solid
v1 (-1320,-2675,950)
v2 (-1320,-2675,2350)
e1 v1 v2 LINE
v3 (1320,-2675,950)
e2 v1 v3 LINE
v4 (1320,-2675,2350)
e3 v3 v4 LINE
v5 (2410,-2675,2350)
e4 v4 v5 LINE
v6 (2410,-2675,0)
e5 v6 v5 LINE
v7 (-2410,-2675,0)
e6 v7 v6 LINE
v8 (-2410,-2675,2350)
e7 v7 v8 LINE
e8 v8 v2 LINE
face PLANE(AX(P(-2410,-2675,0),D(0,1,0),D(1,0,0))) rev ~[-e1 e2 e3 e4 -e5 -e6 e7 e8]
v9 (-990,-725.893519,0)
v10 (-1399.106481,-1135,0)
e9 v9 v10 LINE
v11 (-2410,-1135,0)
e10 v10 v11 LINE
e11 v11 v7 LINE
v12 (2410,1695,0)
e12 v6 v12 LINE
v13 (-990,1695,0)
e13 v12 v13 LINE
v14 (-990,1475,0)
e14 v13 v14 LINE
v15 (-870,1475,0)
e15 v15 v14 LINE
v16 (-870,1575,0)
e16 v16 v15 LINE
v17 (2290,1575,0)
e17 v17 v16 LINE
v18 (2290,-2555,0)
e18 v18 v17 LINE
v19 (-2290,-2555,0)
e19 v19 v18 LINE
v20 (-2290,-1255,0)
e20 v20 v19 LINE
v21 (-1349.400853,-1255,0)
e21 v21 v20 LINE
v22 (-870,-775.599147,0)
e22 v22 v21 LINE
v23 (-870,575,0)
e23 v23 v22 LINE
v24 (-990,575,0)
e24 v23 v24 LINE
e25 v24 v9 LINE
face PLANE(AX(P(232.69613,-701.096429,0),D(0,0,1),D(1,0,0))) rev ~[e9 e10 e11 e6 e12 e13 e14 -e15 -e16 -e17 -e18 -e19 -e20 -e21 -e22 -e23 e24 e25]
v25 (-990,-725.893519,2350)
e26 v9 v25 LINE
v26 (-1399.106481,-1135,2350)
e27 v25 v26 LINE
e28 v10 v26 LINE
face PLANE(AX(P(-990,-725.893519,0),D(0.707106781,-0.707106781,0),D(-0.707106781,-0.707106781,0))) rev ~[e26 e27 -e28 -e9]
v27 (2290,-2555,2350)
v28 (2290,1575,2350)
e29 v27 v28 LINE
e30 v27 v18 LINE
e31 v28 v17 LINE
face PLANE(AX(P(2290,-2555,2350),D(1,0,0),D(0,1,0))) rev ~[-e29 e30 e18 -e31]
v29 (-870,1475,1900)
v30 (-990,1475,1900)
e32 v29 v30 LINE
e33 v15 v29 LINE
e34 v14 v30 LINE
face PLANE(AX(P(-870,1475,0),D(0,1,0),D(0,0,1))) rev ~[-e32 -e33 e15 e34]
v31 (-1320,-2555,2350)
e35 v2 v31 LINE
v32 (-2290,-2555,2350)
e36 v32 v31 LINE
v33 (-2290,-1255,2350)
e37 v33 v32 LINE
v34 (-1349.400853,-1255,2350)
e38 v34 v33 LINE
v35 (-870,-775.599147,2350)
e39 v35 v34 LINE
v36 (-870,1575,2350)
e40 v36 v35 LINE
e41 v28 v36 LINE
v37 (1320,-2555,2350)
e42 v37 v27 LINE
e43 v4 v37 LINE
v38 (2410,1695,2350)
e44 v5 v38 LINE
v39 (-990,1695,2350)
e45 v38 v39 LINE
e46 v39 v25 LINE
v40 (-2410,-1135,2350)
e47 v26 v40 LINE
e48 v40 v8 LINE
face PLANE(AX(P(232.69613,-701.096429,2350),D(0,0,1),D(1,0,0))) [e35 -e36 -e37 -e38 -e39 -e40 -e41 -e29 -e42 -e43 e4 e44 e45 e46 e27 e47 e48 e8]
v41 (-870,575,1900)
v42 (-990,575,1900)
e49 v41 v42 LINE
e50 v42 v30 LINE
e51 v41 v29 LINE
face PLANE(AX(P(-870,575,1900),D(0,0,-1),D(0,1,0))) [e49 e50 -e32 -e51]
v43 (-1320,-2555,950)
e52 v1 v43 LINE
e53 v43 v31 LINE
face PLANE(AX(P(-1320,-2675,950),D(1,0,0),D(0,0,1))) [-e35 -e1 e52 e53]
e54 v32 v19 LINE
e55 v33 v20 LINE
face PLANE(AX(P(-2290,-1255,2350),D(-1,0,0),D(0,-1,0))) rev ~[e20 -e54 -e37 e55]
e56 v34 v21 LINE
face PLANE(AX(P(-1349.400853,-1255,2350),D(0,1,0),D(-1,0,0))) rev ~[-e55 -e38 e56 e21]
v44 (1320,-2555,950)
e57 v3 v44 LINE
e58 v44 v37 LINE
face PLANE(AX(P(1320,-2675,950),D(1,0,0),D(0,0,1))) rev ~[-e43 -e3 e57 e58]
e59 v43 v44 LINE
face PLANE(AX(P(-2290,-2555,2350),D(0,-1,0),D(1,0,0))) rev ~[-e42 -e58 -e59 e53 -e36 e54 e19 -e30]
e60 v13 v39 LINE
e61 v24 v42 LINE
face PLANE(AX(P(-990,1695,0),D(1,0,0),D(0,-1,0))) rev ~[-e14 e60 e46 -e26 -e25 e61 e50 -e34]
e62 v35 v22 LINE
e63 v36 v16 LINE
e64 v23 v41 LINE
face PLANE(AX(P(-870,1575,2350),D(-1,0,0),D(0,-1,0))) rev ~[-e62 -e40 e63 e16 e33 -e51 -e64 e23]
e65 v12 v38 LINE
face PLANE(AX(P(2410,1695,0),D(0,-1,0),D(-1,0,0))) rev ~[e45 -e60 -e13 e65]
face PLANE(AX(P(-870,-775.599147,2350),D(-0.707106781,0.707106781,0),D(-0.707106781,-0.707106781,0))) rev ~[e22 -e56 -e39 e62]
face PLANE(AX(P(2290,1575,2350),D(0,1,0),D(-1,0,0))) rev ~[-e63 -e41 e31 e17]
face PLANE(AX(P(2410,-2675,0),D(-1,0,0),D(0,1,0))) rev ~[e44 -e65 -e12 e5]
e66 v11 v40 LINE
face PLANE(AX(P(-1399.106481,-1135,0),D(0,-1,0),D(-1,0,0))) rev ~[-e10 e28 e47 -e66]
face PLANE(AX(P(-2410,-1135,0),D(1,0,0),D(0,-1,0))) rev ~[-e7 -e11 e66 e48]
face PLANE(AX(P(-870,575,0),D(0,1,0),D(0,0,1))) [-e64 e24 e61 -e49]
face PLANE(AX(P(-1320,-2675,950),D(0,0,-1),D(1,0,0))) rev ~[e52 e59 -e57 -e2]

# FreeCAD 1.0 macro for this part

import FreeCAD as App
import Part
import Sketcher
Q = App.Units.Quantity


def add_polygon(sketch, points):
    """Adds a closed chain of lines whose ends are joined by coincident constraints."""
    first, n = sketch.GeometryCount, len(points)
    for a, b in zip(points, points[1:] + points[:1]):
        sketch.addGeometry(Part.LineSegment(App.Vector(*a, 0), App.Vector(*b, 0)), False)
    for i in range(n):
        sketch.addConstraint(Sketcher.Constraint("Coincident", first + i, 2, first + (i + 1) % n, 1))

doc = App.newDocument("Part")
body = doc.addObject("PartDesign::Body", "Body")

sketch1 = body.newObject("Sketcher::SketchObject", "Sketch")
sketch1.AttachmentSupport = (doc.getObject("XY_Plane"), [""])
sketch1.MapMode = "FlatFace"
add_polygon(sketch1, [(-1399.106481, -1135), (-2410, -1135), (-2410, -2675), (2410, -2675), (2410, 1695), (-990, 1695), (-990, -725.893519)])
sketch1.addConstraint(Sketcher.Constraint("Horizontal", 0))
sketch1.addConstraint(Sketcher.Constraint("Vertical", 1))
sketch1.addConstraint(Sketcher.Constraint("Horizontal", 2))
sketch1.addConstraint(Sketcher.Constraint("Vertical", 3))
sketch1.addConstraint(Sketcher.Constraint("Horizontal", 4))
sketch1.addConstraint(Sketcher.Constraint("Vertical", 5))
sketch1.addConstraint(Sketcher.Constraint("DistanceX", 2, 1, 2, 2, 4820.0))
sketch1.addConstraint(Sketcher.Constraint("DistanceX", 4, 2, 4, 1, 3400.0))
sketch1.addConstraint(Sketcher.Constraint("DistanceY", 1, 2, 1, 1, 1540.0))
sketch1.addConstraint(Sketcher.Constraint("DistanceY", 3, 1, 3, 2, 4370.0))
sketch1.addConstraint(Sketcher.Constraint("Angle", 6, Q("-135 deg")))
sketch1.addConstraint(Sketcher.Constraint("DistanceX", 0, 2, -1, 1, 2410.0))
sketch1.addConstraint(Sketcher.Constraint("DistanceY", 0, 2, -1, 1, 1135.0))
sketch1.addConstraint(Sketcher.Constraint("DistanceX", 0, 2, 0, 1, 1010.893519))
pad1 = body.newObject("PartDesign::Pad", "Pad")
pad1.Profile = sketch1
pad1.Length = 2350

sketch2 = body.newObject("Sketcher::SketchObject", "Sketch001")
sketch2.AttachmentSupport = (doc.getObject("XY_Plane"), [""])
sketch2.MapMode = "FlatFace"
sketch2.AttachmentOffset = App.Placement(App.Vector(0, 0, 2350), App.Rotation())
add_polygon(sketch2, [(-1349.400853, -1255), (-2290, -1255), (-2290, -2555), (2290, -2555), (2290, 1575), (-870, 1575), (-870, -775.599147)])
sketch2.addConstraint(Sketcher.Constraint("Horizontal", 0))
sketch2.addConstraint(Sketcher.Constraint("Vertical", 1))
sketch2.addConstraint(Sketcher.Constraint("Horizontal", 2))
sketch2.addConstraint(Sketcher.Constraint("Vertical", 3))
sketch2.addConstraint(Sketcher.Constraint("Horizontal", 4))
sketch2.addConstraint(Sketcher.Constraint("Vertical", 5))
sketch2.addConstraint(Sketcher.Constraint("DistanceX", 2, 1, 2, 2, 4580.0))
sketch2.addConstraint(Sketcher.Constraint("DistanceX", 4, 2, 4, 1, 3160.0))
sketch2.addConstraint(Sketcher.Constraint("DistanceY", 1, 2, 1, 1, 1300.0))
sketch2.addConstraint(Sketcher.Constraint("DistanceY", 3, 1, 3, 2, 4130.0))
sketch2.addConstraint(Sketcher.Constraint("Angle", 6, Q("-135 deg")))
sketch2.addConstraint(Sketcher.Constraint("DistanceX", 0, 2, -1, 1, 2290.0))
sketch2.addConstraint(Sketcher.Constraint("DistanceY", 0, 2, -1, 1, 1255.0))
sketch2.addConstraint(Sketcher.Constraint("Distance", 6, 677.975188))
pocket1 = body.newObject("PartDesign::Pocket", "Pocket")
pocket1.Profile = sketch2
pocket1.Type = "ThroughAll"

sketch3 = body.newObject("Sketcher::SketchObject", "Sketch002")
sketch3.AttachmentSupport = (doc.getObject("XZ_Plane"), [""])
sketch3.MapMode = "FlatFace"
sketch3.AttachmentOffset = App.Placement(App.Vector(0, 0, 2675), App.Rotation())
add_polygon(sketch3, [(-1320, 2350), (-1320, 950), (1320, 950), (1320, 2350)])
sketch3.addConstraint(Sketcher.Constraint("Vertical", 0))
sketch3.addConstraint(Sketcher.Constraint("Horizontal", 1))
sketch3.addConstraint(Sketcher.Constraint("Vertical", 2))
sketch3.addConstraint(Sketcher.Constraint("Horizontal", 3))
sketch3.addConstraint(Sketcher.Constraint("DistanceX", 1, 1, 1, 2, 2640.0))
sketch3.addConstraint(Sketcher.Constraint("DistanceY", 0, 2, 0, 1, 1400.0))
sketch3.addConstraint(Sketcher.Constraint("DistanceX", 0, 2, -1, 1, 1320.0))
sketch3.addConstraint(Sketcher.Constraint("DistanceY", -1, 1, 0, 2, 950.0))
pocket2 = body.newObject("PartDesign::Pocket", "Pocket001")
pocket2.Profile = sketch3
pocket2.Length = 120

sketch4 = body.newObject("Sketcher::SketchObject", "Sketch003")
sketch4.AttachmentSupport = (doc.getObject("YZ_Plane"), [""])
sketch4.MapMode = "FlatFace"
sketch4.AttachmentOffset = App.Placement(App.Vector(0, 0, -870), App.Rotation())
add_polygon(sketch4, [(575, 1900), (575, 0), (1475, 0), (1475, 1900)])
sketch4.addConstraint(Sketcher.Constraint("Vertical", 0))
sketch4.addConstraint(Sketcher.Constraint("Horizontal", 1))
sketch4.addConstraint(Sketcher.Constraint("Vertical", 2))
sketch4.addConstraint(Sketcher.Constraint("Horizontal", 3))
sketch4.addConstraint(Sketcher.Constraint("PointOnObject", 0, 2, -1))
sketch4.addConstraint(Sketcher.Constraint("DistanceX", 1, 1, 1, 2, 900.0))
sketch4.addConstraint(Sketcher.Constraint("DistanceY", 0, 2, 0, 1, 1900.0))
sketch4.addConstraint(Sketcher.Constraint("DistanceX", -1, 1, 0, 2, 575.0))
pocket3 = body.newObject("PartDesign::Pocket", "Pocket002")
pocket3.Profile = sketch4
pocket3.Type = "ThroughAll"

doc.recompute()
